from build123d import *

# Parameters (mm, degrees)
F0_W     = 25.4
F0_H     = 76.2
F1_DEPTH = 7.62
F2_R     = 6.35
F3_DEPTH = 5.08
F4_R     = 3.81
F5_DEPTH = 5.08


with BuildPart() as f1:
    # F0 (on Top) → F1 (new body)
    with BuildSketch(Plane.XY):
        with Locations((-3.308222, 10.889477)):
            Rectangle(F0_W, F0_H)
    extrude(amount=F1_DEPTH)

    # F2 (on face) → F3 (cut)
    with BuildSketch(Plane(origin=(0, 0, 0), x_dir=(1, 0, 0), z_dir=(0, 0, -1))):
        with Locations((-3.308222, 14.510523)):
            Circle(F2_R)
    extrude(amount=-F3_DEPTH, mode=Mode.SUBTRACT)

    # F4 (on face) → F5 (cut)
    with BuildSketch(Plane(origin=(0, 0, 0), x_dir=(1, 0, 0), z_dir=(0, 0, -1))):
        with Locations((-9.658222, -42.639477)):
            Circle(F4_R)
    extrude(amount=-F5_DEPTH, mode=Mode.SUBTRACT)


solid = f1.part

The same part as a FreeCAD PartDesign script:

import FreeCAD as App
import Part
import Sketcher

V = App.Vector
Q = App.Units.Quantity


def add_polygon(sketch, points):
    """Adds a closed chain of lines whose ends are joined by coincident constraints."""
    first, n = sketch.GeometryCount, len(points)
    for a, b in zip(points, points[1:] + points[:1]):
        sketch.addGeometry(Part.LineSegment(App.Vector(*a, 0), App.Vector(*b, 0)), False)
    for i in range(n):
        sketch.addConstraint(Sketcher.Constraint("Coincident", first + i, 2, first + (i + 1) % n, 1))

doc = App.newDocument("Part")
body = doc.addObject("PartDesign::Body", "Body")

sketch1 = doc.addObject("Sketcher::SketchObject", "Sketch")
body.addObject(sketch1)
sketch1.AttachmentSupport = (doc.XY_Plane, [""])
sketch1.MapMode = "FlatFace"
add_polygon(sketch1, [(-16, 49), (-16, -27), (9, -27), (9, 49)])
sketch1.addConstraint(Sketcher.Constraint("Vertical", 0))
sketch1.addConstraint(Sketcher.Constraint("Horizontal", 1))
sketch1.addConstraint(Sketcher.Constraint("Vertical", 2))
sketch1.addConstraint(Sketcher.Constraint("Horizontal", 3))
sketch1.addConstraint(Sketcher.Constraint("DistanceX", 1, 1, 1, 2, Q("1 in")))
sketch1.addConstraint(Sketcher.Constraint("DistanceY", 0, 2, 0, 1, Q("3 in")))
sketch1.addConstraint(Sketcher.Constraint("DistanceX", 0, 2, -1, 1, 16.008222))
sketch1.addConstraint(Sketcher.Constraint("DistanceY", 0, 2, -1, 1, 27.210523))
pad1 = doc.addObject("PartDesign::Pad", "Pad")
body.addObject(pad1)
pad1.Profile = sketch1
pad1.Length = Q("0.3 in")

sketch2 = doc.addObject("Sketcher::SketchObject", "Sketch001")
body.addObject(sketch2)
sketch2.AttachmentSupport = (doc.XY_Plane, [""])
sketch2.MapMode = "FlatFace"
sketch2.addGeometry(Part.Circle(V(-3, -15, 0), V(0, 0, 1), 6), False)
sketch2.addConstraint(Sketcher.Constraint("Diameter", 0, Q("0.5 in")))
sketch2.addConstraint(Sketcher.Constraint("DistanceX", 0, 3, -1, 1, 3.308222))
sketch2.addConstraint(Sketcher.Constraint("DistanceY", 0, 3, -1, 1, 14.510523))
pocket1 = doc.addObject("PartDesign::Pocket", "Pocket")
body.addObject(pocket1)
pocket1.Profile = sketch2
pocket1.Length = Q("0.2 in")
pocket1.Reversed = True

sketch3 = doc.addObject("Sketcher::SketchObject", "Sketch002")
body.addObject(sketch3)
sketch3.AttachmentSupport = (doc.XY_Plane, [""])
sketch3.MapMode = "FlatFace"
sketch3.addGeometry(Part.Circle(V(-9.7, 42.6, 0), V(0, 0, 1), 3.8), False)
sketch3.addConstraint(Sketcher.Constraint("Diameter", 0, Q("0.3 in")))
sketch3.addConstraint(Sketcher.Constraint("DistanceX", 0, 3, -1, 1, 9.658222))
sketch3.addConstraint(Sketcher.Constraint("DistanceY", -1, 1, 0, 3, 42.639477))
pocket2 = doc.addObject("PartDesign::Pocket", "Pocket001")
body.addObject(pocket2)
pocket2.Profile = sketch3
pocket2.Length = Q("0.2 in")
pocket2.Reversed = True

doc.recompute()
